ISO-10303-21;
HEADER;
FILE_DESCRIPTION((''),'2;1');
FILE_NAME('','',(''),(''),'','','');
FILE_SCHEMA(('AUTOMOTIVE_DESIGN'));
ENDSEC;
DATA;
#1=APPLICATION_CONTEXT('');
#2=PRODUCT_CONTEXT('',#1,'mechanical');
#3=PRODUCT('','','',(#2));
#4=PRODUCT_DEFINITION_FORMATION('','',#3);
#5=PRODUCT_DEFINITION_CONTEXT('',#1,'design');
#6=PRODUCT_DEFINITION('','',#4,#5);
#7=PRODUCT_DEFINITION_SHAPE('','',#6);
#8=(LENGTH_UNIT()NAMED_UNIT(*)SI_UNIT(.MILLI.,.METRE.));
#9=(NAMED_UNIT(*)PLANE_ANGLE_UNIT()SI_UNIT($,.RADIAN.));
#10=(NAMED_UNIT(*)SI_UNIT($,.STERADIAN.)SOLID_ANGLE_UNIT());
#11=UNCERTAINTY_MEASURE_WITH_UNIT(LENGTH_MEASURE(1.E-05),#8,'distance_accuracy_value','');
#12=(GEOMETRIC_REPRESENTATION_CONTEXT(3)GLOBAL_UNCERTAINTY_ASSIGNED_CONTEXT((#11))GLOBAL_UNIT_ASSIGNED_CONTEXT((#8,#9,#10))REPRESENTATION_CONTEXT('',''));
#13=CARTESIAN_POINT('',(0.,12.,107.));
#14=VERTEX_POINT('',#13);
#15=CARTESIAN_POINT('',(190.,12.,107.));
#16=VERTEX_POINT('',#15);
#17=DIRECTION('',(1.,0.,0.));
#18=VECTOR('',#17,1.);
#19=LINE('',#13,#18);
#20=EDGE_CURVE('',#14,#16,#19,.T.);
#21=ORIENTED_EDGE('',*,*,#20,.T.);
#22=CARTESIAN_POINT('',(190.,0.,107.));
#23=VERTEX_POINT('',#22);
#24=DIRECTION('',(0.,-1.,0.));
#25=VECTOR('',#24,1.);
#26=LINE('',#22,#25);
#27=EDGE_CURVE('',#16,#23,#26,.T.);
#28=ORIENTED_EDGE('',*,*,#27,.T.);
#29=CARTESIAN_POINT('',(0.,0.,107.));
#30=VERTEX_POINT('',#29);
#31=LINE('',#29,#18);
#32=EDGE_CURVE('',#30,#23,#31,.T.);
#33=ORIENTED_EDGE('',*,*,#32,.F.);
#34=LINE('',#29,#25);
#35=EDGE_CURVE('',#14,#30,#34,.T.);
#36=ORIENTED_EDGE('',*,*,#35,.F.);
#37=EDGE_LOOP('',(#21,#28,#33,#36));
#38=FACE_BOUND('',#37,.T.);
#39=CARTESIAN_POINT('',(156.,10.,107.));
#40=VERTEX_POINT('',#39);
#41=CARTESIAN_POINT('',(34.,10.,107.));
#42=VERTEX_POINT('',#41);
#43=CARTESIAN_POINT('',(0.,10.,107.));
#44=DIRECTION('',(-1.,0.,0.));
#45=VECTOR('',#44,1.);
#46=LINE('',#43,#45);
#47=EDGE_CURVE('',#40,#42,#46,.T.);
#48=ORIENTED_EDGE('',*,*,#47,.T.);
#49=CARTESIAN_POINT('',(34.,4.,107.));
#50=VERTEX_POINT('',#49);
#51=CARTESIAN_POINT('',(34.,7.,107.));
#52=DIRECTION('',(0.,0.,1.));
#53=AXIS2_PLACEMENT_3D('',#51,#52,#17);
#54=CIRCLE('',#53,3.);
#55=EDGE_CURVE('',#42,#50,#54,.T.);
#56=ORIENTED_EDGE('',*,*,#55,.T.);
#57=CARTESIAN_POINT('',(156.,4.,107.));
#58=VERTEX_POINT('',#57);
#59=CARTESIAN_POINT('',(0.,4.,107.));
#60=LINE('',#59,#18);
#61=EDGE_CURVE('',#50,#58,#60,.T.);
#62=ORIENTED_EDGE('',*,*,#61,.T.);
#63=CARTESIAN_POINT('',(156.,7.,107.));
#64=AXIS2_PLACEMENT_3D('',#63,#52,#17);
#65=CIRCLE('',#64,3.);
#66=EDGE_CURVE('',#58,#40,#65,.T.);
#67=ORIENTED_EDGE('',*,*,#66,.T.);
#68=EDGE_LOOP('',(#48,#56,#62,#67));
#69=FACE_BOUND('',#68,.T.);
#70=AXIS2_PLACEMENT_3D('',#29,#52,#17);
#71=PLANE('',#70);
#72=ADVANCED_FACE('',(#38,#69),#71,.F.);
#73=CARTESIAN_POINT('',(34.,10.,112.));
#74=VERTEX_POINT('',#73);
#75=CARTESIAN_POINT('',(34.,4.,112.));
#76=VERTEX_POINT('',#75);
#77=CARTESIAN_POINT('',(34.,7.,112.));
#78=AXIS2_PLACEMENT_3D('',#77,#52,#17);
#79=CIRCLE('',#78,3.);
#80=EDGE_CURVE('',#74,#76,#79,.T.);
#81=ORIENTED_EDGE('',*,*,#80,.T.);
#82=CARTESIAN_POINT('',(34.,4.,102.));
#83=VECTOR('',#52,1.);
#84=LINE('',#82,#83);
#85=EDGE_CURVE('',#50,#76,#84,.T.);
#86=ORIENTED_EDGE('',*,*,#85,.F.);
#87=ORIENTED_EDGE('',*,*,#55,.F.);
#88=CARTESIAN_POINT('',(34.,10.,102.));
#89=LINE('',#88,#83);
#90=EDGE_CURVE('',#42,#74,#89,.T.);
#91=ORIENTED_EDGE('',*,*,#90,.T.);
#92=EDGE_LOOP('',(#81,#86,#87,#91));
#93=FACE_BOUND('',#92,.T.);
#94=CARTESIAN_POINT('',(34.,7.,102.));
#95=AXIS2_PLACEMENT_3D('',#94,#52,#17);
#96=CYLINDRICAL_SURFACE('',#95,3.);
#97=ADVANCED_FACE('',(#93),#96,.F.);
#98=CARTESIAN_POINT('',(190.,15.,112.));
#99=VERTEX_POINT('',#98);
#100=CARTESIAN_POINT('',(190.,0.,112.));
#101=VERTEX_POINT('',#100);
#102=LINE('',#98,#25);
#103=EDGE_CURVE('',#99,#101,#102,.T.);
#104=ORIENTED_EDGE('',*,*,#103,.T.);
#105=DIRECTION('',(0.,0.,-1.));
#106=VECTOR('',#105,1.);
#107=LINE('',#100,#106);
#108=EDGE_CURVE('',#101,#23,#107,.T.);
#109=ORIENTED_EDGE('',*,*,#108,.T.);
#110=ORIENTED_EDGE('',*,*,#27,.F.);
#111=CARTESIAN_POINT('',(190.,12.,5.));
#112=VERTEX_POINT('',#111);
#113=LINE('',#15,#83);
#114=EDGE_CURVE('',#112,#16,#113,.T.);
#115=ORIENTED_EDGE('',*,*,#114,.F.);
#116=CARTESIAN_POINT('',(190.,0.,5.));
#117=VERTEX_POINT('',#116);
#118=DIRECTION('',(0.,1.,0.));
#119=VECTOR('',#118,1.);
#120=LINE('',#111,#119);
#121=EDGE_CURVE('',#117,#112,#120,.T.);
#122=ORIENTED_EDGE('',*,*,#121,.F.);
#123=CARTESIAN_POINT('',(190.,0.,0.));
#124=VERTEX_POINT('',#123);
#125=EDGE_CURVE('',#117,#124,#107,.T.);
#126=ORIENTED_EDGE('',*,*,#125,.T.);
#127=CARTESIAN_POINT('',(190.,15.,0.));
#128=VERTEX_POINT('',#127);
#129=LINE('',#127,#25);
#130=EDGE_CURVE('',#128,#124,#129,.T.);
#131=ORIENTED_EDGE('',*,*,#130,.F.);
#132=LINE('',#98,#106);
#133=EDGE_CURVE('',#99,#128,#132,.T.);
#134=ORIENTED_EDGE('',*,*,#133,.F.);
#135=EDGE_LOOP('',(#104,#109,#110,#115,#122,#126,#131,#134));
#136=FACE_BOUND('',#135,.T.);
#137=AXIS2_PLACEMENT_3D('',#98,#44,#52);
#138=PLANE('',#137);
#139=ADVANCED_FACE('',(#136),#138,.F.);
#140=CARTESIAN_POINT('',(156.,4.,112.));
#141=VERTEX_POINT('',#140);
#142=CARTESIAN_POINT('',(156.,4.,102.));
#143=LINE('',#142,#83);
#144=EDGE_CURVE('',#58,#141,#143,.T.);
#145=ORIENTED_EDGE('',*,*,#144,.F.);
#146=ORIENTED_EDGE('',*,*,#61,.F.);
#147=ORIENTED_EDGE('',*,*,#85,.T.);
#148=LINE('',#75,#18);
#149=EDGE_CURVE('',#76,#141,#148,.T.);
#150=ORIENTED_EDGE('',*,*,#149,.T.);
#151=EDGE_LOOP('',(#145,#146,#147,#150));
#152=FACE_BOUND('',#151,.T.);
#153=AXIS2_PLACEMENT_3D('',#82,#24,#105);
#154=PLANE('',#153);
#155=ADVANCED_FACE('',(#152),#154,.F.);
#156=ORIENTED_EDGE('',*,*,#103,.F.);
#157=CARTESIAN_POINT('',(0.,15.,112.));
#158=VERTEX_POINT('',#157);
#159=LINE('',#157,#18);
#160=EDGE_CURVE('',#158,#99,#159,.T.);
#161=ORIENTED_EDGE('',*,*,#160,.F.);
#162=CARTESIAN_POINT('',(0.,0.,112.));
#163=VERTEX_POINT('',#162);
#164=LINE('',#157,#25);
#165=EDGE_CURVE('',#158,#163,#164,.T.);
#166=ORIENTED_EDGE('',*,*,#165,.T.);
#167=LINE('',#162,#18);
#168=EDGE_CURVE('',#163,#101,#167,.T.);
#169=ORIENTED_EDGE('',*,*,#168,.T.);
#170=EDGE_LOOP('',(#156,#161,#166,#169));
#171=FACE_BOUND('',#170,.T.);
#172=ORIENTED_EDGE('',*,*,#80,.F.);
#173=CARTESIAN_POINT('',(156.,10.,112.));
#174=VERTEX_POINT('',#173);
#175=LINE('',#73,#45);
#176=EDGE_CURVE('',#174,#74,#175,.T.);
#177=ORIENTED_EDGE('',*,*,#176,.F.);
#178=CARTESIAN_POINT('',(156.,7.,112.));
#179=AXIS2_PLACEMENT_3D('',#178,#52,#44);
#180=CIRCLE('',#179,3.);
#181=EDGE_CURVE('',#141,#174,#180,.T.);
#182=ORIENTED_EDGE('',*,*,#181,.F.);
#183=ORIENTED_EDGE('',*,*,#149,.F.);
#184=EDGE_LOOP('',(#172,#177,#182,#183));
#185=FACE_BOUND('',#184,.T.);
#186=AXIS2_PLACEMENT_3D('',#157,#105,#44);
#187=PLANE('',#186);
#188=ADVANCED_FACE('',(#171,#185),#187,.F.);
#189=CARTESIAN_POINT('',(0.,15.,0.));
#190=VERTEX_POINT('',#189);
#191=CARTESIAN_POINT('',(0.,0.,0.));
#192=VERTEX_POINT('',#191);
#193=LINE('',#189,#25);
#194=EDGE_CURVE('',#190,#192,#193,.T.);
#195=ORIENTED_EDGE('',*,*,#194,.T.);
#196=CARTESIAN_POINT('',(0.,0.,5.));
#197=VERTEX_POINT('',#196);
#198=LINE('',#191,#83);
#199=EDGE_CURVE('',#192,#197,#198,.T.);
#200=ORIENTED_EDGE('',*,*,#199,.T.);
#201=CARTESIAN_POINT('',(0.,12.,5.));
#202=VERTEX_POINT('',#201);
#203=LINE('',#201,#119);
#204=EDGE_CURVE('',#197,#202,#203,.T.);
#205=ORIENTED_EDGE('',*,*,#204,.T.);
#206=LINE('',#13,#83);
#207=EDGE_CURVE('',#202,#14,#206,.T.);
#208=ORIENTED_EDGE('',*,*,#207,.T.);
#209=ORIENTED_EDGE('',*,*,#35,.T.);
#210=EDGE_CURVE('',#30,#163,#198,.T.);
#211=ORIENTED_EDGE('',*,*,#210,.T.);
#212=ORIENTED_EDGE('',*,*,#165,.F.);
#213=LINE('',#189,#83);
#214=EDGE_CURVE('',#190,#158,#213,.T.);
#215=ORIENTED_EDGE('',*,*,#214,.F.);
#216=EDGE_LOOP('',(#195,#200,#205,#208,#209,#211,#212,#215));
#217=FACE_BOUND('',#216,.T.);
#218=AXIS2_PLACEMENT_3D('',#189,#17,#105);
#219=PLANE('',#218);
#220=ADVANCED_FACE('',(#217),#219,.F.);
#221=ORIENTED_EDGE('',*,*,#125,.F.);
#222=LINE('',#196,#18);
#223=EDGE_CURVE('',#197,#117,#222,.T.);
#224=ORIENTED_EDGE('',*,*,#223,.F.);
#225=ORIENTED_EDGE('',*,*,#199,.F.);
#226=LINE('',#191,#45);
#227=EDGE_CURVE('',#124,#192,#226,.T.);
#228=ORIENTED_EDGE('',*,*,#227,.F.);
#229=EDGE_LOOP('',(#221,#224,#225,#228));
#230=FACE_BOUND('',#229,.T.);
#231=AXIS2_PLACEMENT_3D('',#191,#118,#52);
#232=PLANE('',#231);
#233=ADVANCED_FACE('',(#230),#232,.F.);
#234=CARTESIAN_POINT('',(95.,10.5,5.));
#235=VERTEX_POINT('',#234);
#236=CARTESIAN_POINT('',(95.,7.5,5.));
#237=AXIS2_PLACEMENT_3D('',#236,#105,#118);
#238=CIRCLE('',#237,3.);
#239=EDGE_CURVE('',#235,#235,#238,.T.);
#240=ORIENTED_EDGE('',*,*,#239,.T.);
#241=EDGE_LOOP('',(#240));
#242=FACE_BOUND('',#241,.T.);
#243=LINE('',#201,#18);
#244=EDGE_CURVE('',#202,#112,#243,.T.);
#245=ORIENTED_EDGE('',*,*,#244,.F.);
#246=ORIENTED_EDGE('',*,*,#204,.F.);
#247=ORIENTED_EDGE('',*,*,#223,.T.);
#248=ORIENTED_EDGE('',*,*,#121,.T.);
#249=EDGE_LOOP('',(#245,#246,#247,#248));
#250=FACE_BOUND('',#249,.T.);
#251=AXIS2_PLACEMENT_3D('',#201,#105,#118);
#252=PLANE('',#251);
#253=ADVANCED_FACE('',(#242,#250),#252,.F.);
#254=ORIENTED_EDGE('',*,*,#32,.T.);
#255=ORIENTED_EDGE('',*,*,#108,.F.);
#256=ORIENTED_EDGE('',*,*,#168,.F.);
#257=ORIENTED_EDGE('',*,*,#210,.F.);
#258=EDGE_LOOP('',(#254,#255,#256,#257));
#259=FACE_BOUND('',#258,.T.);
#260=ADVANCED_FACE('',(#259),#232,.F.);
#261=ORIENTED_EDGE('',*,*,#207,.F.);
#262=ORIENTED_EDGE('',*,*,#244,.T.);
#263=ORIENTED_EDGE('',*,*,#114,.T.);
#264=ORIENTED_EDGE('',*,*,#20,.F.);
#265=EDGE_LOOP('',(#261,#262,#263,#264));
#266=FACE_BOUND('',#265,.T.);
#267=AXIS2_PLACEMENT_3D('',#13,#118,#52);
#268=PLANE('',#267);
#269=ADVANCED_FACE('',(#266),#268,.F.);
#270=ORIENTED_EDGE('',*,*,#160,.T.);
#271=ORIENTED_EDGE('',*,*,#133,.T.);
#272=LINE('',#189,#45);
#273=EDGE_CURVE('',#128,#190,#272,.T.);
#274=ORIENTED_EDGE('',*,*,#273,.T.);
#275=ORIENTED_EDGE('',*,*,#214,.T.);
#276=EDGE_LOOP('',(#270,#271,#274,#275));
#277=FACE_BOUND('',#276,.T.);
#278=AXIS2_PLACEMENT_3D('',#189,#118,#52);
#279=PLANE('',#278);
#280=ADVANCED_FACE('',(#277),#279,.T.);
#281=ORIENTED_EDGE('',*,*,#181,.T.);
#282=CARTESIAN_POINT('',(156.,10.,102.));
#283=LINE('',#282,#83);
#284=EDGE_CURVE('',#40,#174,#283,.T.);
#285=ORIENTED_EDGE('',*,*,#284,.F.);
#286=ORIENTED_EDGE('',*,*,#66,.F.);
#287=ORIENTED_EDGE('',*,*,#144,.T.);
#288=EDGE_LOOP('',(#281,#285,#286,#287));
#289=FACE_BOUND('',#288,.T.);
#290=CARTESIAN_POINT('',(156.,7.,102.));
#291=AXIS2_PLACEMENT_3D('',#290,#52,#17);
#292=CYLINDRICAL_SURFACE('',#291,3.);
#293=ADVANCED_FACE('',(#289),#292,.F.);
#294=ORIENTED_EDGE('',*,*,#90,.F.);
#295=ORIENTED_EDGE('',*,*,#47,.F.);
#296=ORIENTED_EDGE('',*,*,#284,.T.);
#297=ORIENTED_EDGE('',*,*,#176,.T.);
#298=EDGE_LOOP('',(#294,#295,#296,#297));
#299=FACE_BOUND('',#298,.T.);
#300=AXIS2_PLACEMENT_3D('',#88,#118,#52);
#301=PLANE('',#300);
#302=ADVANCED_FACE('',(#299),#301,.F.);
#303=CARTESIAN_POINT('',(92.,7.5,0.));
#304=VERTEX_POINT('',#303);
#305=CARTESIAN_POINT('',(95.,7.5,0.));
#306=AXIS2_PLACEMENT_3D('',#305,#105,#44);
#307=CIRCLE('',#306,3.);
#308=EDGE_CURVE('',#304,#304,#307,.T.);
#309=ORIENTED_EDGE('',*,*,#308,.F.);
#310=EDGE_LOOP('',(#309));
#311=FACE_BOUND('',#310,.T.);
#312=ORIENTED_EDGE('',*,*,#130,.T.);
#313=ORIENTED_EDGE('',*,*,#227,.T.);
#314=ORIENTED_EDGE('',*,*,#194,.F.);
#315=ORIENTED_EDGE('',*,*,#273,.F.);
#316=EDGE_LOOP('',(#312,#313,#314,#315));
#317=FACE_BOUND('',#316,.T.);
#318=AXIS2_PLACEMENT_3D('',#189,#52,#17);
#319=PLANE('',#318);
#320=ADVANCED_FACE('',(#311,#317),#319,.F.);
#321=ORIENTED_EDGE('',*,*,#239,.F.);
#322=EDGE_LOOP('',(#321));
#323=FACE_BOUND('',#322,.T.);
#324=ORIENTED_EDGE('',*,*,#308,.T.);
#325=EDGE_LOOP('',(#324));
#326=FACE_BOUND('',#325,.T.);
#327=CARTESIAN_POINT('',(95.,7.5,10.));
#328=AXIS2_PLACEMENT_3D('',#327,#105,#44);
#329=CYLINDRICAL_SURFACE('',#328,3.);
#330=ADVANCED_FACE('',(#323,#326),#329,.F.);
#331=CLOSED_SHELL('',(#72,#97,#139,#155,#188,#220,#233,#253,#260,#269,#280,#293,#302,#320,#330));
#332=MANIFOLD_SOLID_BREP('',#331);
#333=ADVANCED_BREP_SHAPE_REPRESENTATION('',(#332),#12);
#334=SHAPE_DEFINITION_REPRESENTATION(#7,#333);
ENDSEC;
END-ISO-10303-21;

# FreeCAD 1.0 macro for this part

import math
import FreeCAD as App
import Part
import Sketcher

V = App.Vector

doc = App.newDocument("Part")
body = doc.addObject("PartDesign::Body", "Body")

# Sketch on XZ plane
sketch1 = doc.addObject("Sketcher::SketchObject", "Sketch")
body.addObject(sketch1)
sketch1.AttachmentSupport = (doc.XZ_Plane, [""])
sketch1.MapMode = "FlatFace"
sketch1.addGeometry([
    Part.LineSegment(V(0, 0, 0), V(0, 112, 0)),
    Part.LineSegment(V(0, 112, 0), V(190, 112, 0)),
    Part.LineSegment(V(190, 112, 0), V(190, 0, 0)),
    Part.LineSegment(V(190, 0, 0), V(0, 0, 0)),
], False)
sketch1.addConstraint([
    Sketcher.Constraint("Coincident", 0, 2, 1, 1),
    Sketcher.Constraint("Coincident", 1, 2, 2, 1),
    Sketcher.Constraint("Coincident", 2, 2, 3, 1),
    Sketcher.Constraint("Coincident", 3, 2, 0, 1),
    Sketcher.Constraint("Vertical", 0),
    Sketcher.Constraint("Horizontal", 1),
    Sketcher.Constraint("Vertical", 2),
    Sketcher.Constraint("Horizontal", 3),
    Sketcher.Constraint("Coincident", 3, 2, -1, 1),
    Sketcher.Constraint("DistanceX", 1, 1, 1, 2, 190.0),
    Sketcher.Constraint("DistanceY", 0, 1, 0, 2, 112.0),
])
pad1 = doc.addObject("PartDesign::Pad", "Pad")
body.addObject(pad1)
pad1.Profile = sketch1
pad1.Length = 15
pad1.Reversed = True

# Sketch on YZ plane
sketch2 = doc.addObject("Sketcher::SketchObject", "Sketch001")
body.addObject(sketch2)
sketch2.AttachmentSupport = (doc.YZ_Plane, [""])
sketch2.MapMode = "FlatFace"
sketch2.AttachmentOffset = App.Placement(V(0, 0, 190), App.Rotation())
sketch2.addGeometry([
    Part.LineSegment(V(12, 107, 0), V(0, 107, 0)),
    Part.LineSegment(V(0, 107, 0), V(0, 5, 0)),
    Part.LineSegment(V(0, 5, 0), V(12, 5, 0)),
    Part.LineSegment(V(12, 5, 0), V(12, 107, 0)),
], False)
sketch2.addConstraint([
    Sketcher.Constraint("Coincident", 0, 2, 1, 1),
    Sketcher.Constraint("Coincident", 1, 2, 2, 1),
    Sketcher.Constraint("Coincident", 2, 2, 3, 1),
    Sketcher.Constraint("Coincident", 3, 2, 0, 1),
    Sketcher.Constraint("Horizontal", 0),
    Sketcher.Constraint("Vertical", 1),
    Sketcher.Constraint("Horizontal", 2),
    Sketcher.Constraint("Vertical", 3),
    Sketcher.Constraint("PointOnObject", 0, 2, -2),
    Sketcher.Constraint("DistanceX", 0, 2, 0, 1, 12.0),
    Sketcher.Constraint("DistanceY", 1, 2, 1, 1, 102.0),
    Sketcher.Constraint("DistanceY", -1, 1, 0, 2, 107.0),
])
pocket1 = doc.addObject("PartDesign::Pocket", "Pocket")
body.addObject(pocket1)
pocket1.Profile = sketch2
pocket1.Type = "ThroughAll"

# Sketch on XY plane
sketch3 = doc.addObject("Sketcher::SketchObject", "Sketch002")
body.addObject(sketch3)
sketch3.AttachmentSupport = (doc.XY_Plane, [""])
sketch3.MapMode = "FlatFace"
sketch3.AttachmentOffset = App.Placement(V(0, 0, 112), App.Rotation())
sketch3.addGeometry([
    Part.LineSegment(V(156, 10, 0), V(34, 10, 0)),
    Part.ArcOfCircle(Part.Circle(V(34, 7, 0), V(0, 0, 1), 3), math.radians(90), math.radians(270)),
    Part.LineSegment(V(34, 4, 0), V(156, 4, 0)),
    Part.ArcOfCircle(Part.Circle(V(156, 7, 0), V(0, 0, 1), 3), math.radians(-90), math.radians(90)),
], False)
sketch3.addConstraint([
    Sketcher.Constraint("Tangent", 0, 2, 1, 1),
    Sketcher.Constraint("Tangent", 1, 2, 2, 1),
    Sketcher.Constraint("Tangent", 2, 2, 3, 1),
    Sketcher.Constraint("Tangent", 3, 2, 0, 1),
    Sketcher.Constraint("Horizontal", 0),
    Sketcher.Constraint("Horizontal", 2),
    Sketcher.Constraint("Radius", 1, 3.0),
    Sketcher.Constraint("DistanceX", 0, 2, 0, 1, 122.0),
    Sketcher.Constraint("DistanceX", -1, 1, 1, 3, 34.0),
    Sketcher.Constraint("DistanceY", -1, 1, 1, 3, 7.0),
])
pocket2 = doc.addObject("PartDesign::Pocket", "Pocket001")
body.addObject(pocket2)
pocket2.Profile = sketch3
pocket2.Length = 10

# Sketch on XY plane
sketch4 = doc.addObject("Sketcher::SketchObject", "Sketch003")
body.addObject(sketch4)
sketch4.AttachmentSupport = (doc.XY_Plane, [""])
sketch4.MapMode = "FlatFace"
sketch4.addGeometry(Part.Circle(V(95, 7.5, 0), V(0, 0, 1), 3), False)
sketch4.addConstraint([
    Sketcher.Constraint("Diameter", 0, 6.0),
    Sketcher.Constraint("DistanceX", -1, 1, 0, 3, 95.0),
    Sketcher.Constraint("DistanceY", -1, 1, 0, 3, 7.5),
])
pocket3 = doc.addObject("PartDesign::Pocket", "Pocket002")
body.addObject(pocket3)
pocket3.Profile = sketch4
pocket3.Length = 10
pocket3.Reversed = True

doc.recompute()
